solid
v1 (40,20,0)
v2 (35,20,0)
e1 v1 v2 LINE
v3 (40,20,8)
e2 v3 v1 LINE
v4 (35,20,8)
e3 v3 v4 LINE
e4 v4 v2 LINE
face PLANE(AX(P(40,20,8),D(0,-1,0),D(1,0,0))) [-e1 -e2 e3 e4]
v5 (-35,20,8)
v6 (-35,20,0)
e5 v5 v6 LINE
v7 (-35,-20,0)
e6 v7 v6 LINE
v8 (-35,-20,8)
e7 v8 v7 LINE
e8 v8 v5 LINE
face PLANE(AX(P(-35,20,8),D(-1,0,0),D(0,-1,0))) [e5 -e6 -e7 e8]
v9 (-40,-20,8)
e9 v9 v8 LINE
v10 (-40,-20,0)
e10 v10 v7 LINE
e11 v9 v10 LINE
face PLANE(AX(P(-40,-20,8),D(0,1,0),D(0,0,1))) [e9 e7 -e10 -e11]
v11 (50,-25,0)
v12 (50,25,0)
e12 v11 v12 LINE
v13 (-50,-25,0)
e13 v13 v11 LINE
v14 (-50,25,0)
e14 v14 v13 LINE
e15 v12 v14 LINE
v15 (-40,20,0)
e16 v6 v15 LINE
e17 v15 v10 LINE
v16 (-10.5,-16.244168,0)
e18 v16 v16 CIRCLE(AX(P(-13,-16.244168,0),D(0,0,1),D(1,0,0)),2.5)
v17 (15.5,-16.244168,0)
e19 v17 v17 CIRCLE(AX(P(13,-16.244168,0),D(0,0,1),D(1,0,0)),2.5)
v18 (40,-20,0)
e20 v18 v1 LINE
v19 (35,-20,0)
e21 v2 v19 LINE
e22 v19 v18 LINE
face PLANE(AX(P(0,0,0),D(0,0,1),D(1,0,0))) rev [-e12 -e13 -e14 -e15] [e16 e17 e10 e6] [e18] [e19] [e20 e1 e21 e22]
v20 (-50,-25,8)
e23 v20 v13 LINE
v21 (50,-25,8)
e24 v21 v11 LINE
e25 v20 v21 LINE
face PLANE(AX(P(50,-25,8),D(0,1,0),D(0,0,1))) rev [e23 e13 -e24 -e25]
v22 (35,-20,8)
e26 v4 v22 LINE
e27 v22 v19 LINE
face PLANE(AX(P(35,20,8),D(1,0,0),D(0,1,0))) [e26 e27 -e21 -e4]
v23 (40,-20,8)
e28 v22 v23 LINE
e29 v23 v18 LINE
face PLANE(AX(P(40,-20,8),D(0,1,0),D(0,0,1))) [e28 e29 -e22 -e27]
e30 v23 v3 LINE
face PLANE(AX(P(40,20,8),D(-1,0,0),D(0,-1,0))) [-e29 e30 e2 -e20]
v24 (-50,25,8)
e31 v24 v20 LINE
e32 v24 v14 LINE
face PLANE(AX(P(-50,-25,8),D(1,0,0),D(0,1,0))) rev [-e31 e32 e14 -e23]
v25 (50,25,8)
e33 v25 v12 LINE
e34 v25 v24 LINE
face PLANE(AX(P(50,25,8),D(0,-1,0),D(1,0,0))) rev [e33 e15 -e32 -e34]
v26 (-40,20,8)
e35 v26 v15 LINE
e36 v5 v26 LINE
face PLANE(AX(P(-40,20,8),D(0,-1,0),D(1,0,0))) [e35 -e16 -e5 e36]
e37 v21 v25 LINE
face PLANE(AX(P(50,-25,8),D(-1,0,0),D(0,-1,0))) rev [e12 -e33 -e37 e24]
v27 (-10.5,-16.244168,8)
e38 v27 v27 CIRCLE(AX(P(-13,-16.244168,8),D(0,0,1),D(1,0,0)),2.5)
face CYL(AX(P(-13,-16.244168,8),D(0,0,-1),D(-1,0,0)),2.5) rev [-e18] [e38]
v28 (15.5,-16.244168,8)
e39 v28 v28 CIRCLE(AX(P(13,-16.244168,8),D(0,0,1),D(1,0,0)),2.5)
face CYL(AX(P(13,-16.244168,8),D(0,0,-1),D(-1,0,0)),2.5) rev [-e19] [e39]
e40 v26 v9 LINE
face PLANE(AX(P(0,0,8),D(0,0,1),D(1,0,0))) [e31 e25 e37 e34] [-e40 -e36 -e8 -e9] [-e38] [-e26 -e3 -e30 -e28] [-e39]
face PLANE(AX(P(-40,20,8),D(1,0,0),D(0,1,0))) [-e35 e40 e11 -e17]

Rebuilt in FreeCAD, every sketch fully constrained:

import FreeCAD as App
import Part
import Sketcher
from FreeCAD import Vector

doc = App.newDocument("Part")
body = doc.addObject("PartDesign::Body", "Body")

sketch1 = body.newObject("Sketcher::SketchObject", "Sketch")
sketch1.AttachmentSupport = (doc.getObject("XY_Plane"), [""])
sketch1.MapMode = "FlatFace"
sketch1.addGeometry([
    Part.LineSegment(Vector(-50, 25, 0), Vector(-50, -25, 0)),
    Part.LineSegment(Vector(-50, -25, 0), Vector(50, -25, 0)),
    Part.LineSegment(Vector(50, -25, 0), Vector(50, 25, 0)),
    Part.LineSegment(Vector(50, 25, 0), Vector(-50, 25, 0)),
    Part.Circle(Vector(-13, -16.244168, 0), Vector(0, 0, 1), 2.5),
    Part.Circle(Vector(13, -16.244168, 0), Vector(0, 0, 1), 2.5),
    Part.LineSegment(Vector(-35, -20, 0), Vector(-40, -20, 0)),
    Part.LineSegment(Vector(-40, -20, 0), Vector(-40, 20, 0)),
    Part.LineSegment(Vector(-40, 20, 0), Vector(-35, 20, 0)),
    Part.LineSegment(Vector(-35, 20, 0), Vector(-35, -20, 0)),
    Part.LineSegment(Vector(40, -20, 0), Vector(35, -20, 0)),
    Part.LineSegment(Vector(35, -20, 0), Vector(35, 20, 0)),
    Part.LineSegment(Vector(35, 20, 0), Vector(40, 20, 0)),
    Part.LineSegment(Vector(40, 20, 0), Vector(40, -20, 0)),
], False)
sketch1.addConstraint([
    Sketcher.Constraint("Coincident", 0, 2, 1, 1),
    Sketcher.Constraint("Coincident", 1, 2, 2, 1),
    Sketcher.Constraint("Coincident", 2, 2, 3, 1),
    Sketcher.Constraint("Coincident", 3, 2, 0, 1),
    Sketcher.Constraint("Coincident", 6, 2, 7, 1),
    Sketcher.Constraint("Coincident", 7, 2, 8, 1),
    Sketcher.Constraint("Coincident", 8, 2, 9, 1),
    Sketcher.Constraint("Coincident", 9, 2, 6, 1),
    Sketcher.Constraint("Coincident", 10, 2, 11, 1),
    Sketcher.Constraint("Coincident", 11, 2, 12, 1),
    Sketcher.Constraint("Coincident", 12, 2, 13, 1),
    Sketcher.Constraint("Coincident", 13, 2, 10, 1),
    Sketcher.Constraint("Vertical", 0),
    Sketcher.Constraint("Horizontal", 1),
    Sketcher.Constraint("Vertical", 2),
    Sketcher.Constraint("Horizontal", 3),
    Sketcher.Constraint("Horizontal", 6),
    Sketcher.Constraint("Vertical", 7),
    Sketcher.Constraint("Horizontal", 8),
    Sketcher.Constraint("Vertical", 9),
    Sketcher.Constraint("Horizontal", 10),
    Sketcher.Constraint("Vertical", 11),
    Sketcher.Constraint("Horizontal", 12),
    Sketcher.Constraint("Vertical", 13),
    Sketcher.Constraint("Equal", 4, 5),
    Sketcher.Constraint("Symmetric", 0, 2, 2, 2, -1, 1),
    Sketcher.Constraint("Symmetric", 8, 2, 10, 2, -1, 1),
    Sketcher.Constraint("Symmetric", 6, 2, 12, 2, -1, 1),
    Sketcher.Constraint("Symmetric", 4, 3, 5, 3, -2),
    Sketcher.Constraint("Horizontal", 9, 2, 10, 2),
    Sketcher.Constraint("Diameter", 4, 5.0),
    Sketcher.Constraint("DistanceX", 1, 1, 1, 2, 100.0),
    Sketcher.Constraint("DistanceX", 6, 2, 6, 1, 5.0),
    Sketcher.Constraint("DistanceY", 0, 2, 0, 1, 50.0),
    Sketcher.Constraint("DistanceY", 7, 1, 7, 2, 40.0),
    Sketcher.Constraint("DistanceX", 4, 3, -1, 1, 13.0),
    Sketcher.Constraint("DistanceX", 6, 2, -1, 1, 40.0),
    Sketcher.Constraint("DistanceY", 4, 3, -1, 1, 16.244168),
])
pad1 = body.newObject("PartDesign::Pad", "Pad")
pad1.Profile = sketch1
pad1.Length = 8

doc.recompute()
